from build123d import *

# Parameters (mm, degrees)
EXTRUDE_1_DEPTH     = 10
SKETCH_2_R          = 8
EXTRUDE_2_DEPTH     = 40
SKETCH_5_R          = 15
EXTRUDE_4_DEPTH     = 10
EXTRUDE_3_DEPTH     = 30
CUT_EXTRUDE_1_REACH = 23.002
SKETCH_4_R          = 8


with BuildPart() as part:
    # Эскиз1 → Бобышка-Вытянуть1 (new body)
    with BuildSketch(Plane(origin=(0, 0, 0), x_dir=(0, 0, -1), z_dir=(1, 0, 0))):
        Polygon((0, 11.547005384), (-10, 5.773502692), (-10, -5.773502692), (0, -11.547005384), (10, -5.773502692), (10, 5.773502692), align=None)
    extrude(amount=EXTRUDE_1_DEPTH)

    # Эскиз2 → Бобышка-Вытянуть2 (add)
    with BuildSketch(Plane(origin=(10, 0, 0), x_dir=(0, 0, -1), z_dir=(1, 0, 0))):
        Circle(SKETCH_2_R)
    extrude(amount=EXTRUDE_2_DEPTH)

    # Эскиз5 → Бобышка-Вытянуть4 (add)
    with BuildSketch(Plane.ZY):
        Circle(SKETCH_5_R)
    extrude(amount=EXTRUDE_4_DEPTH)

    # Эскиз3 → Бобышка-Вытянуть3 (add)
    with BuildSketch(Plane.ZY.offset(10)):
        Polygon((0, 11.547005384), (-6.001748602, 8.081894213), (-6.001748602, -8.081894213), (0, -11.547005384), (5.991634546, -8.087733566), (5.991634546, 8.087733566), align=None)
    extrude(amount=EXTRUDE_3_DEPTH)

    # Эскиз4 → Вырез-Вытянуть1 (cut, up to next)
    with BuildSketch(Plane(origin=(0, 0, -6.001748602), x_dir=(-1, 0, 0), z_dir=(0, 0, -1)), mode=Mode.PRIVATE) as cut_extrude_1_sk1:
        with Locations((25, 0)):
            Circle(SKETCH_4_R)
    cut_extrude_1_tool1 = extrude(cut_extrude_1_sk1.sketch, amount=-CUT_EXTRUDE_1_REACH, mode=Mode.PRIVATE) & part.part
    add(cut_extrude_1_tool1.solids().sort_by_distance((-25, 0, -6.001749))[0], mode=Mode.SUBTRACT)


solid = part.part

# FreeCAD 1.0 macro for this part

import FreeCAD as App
import Part
import Sketcher

V = App.Vector
Q = App.Units.Quantity


def add_polygon(sketch, points):
    """Adds a closed chain of lines whose ends are joined by coincident constraints."""
    first, n = sketch.GeometryCount, len(points)
    for a, b in zip(points, points[1:] + points[:1]):
        sketch.addGeometry(Part.LineSegment(App.Vector(*a, 0), App.Vector(*b, 0)), False)
    for i in range(n):
        sketch.addConstraint(Sketcher.Constraint("Coincident", first + i, 2, first + (i + 1) % n, 1))

doc = App.newDocument("Part")
params = doc.addObject("Spreadsheet::Sheet", "Params")
for row, (alias, value) in enumerate([
    ("pad1_length", "10 mm"),
    ("sketch2_diameter", "16 mm"),
    ("pad2_length", "40 mm"),
    ("sketch3_diameter", "30 mm"),
    ("pad3_length", "10 mm"),
    ("pad4_length", "30 mm"),
    ("sketch5_diameter", "16 mm"),
], start=1):
    params.set(f"A{row}", alias)
    params.set(f"B{row}", "=" + value)
    params.setAlias(f"B{row}", alias)

body = doc.addObject("PartDesign::Body", "Body")

# Sketch on YZ plane
sketch1 = doc.addObject("Sketcher::SketchObject", "Sketch")
body.addObject(sketch1)
sketch1.AttachmentSupport = (doc.YZ_Plane, [""])
sketch1.MapMode = "FlatFace"
add_polygon(sketch1, [(12, 0), (6, 10), (-6, 10), (-12, 0), (-6, -10), (6, -10)])  # lines 0-5
sketch1.addConstraint([
    Sketcher.Constraint("Horizontal", 1),
    Sketcher.Constraint("Horizontal", 4),
    Sketcher.Constraint("Symmetric", 0, 2, 3, 2, -1, 1),
    Sketcher.Constraint("Symmetric", 2, 2, 5, 2, -1, 1),
    Sketcher.Constraint("PointOnObject", 2, 2, -1),
    Sketcher.Constraint("Parallel", 2, 5),
    Sketcher.Constraint("Vertical", 1, 2, 3, 2),
    Sketcher.Constraint("Angle", 0, Q("120 deg")),
    Sketcher.Constraint("DistanceY", -1, 1, 0, 2, Q("10 mm")),
    Sketcher.Constraint("DistanceX", 1, 2, 1, 1, Q("11.547005 mm")),
])
pad1 = doc.addObject("PartDesign::Pad", "Pad")
body.addObject(pad1)
pad1.Profile = sketch1
pad1.setExpression("Length", "Params.pad1_length")

# Sketch on YZ plane
sketch2 = doc.addObject("Sketcher::SketchObject", "Sketch001")
body.addObject(sketch2)
sketch2.AttachmentSupport = (doc.YZ_Plane, [""])
sketch2.MapMode = "FlatFace"
sketch2.AttachmentOffset = App.Placement(V(0, 0, 10), App.Rotation())
sketch2.addGeometry(Part.Circle(V(0, 0, 0), V(0, 0, 1), 8), False)
sketch2.addConstraint([
    Sketcher.Constraint("Coincident", 0, 3, -1, 1),
    Sketcher.Constraint("Diameter", 0, Q("16 mm")),
])
sketch2.setExpression("Constraints[1]", "Params.sketch2_diameter")
pad2 = doc.addObject("PartDesign::Pad", "Pad001")
body.addObject(pad2)
pad2.Profile = sketch2
pad2.setExpression("Length", "Params.pad2_length")

# Sketch on YZ plane
sketch3 = doc.addObject("Sketcher::SketchObject", "Sketch002")
body.addObject(sketch3)
sketch3.AttachmentSupport = (doc.YZ_Plane, [""])
sketch3.MapMode = "FlatFace"
sketch3.addGeometry(Part.Circle(V(0, 0, 0), V(0, 0, 1), 15), False)
sketch3.addConstraint([
    Sketcher.Constraint("Coincident", 0, 3, -1, 1),
    Sketcher.Constraint("Diameter", 0, Q("30 mm")),
])
sketch3.setExpression("Constraints[1]", "Params.sketch3_diameter")
pad3 = doc.addObject("PartDesign::Pad", "Pad002")
body.addObject(pad3)
pad3.Profile = sketch3
pad3.setExpression("Length", "Params.pad3_length")
pad3.Reversed = True

# Sketch on YZ plane
sketch4 = doc.addObject("Sketcher::SketchObject", "Sketch003")
body.addObject(sketch4)
sketch4.AttachmentSupport = (doc.YZ_Plane, [""])
sketch4.MapMode = "FlatFace"
sketch4.AttachmentOffset = App.Placement(V(0, 0, -10), App.Rotation())
add_polygon(sketch4, [(12, 0), (8, -6), (-8, -6), (-12, 0), (-8, 6), (8, 6)])  # lines 0-5
sketch4.addConstraint([
    Sketcher.Constraint("Horizontal", 1),
    Sketcher.Constraint("Horizontal", 4),
    Sketcher.Constraint("Symmetric", 2, 2, 5, 2, -1, 1),
    Sketcher.Constraint("PointOnObject", 2, 2, -1),
    Sketcher.Constraint("Parallel", 0, 3),
    Sketcher.Constraint("Parallel", 2, 5),
    Sketcher.Constraint("Equal", 0, 2),
    Sketcher.Constraint("Angle", 0, Q("-120 deg")),
    Sketcher.Constraint("DistanceX", 1, 2, 1, 1, Q("16.163788 mm")),
    Sketcher.Constraint("DistanceX", 2, 2, 0, 2, Q("19.6289 mm")),
    Sketcher.Constraint("DistanceX", 4, 1, 4, 2, Q("16.175467 mm")),
])
pad4 = doc.addObject("PartDesign::Pad", "Pad003")
body.addObject(pad4)
pad4.Profile = sketch4
pad4.setExpression("Length", "Params.pad4_length")
pad4.Reversed = True

# Sketch on XY plane
sketch5 = doc.addObject("Sketcher::SketchObject", "Sketch004")
body.addObject(sketch5)
sketch5.AttachmentSupport = (doc.XY_Plane, [""])
sketch5.MapMode = "FlatFace"
sketch5.AttachmentOffset = App.Placement(V(0, 0, -6.001749), App.Rotation())
sketch5.addGeometry(Part.Circle(V(-25, 0, 0), V(0, 0, 1), 8), False)
sketch5.addConstraint([
    Sketcher.Constraint("PointOnObject", 0, 3, -1),
    Sketcher.Constraint("Diameter", 0, Q("16 mm")),
    Sketcher.Constraint("DistanceX", 0, 3, -1, 1, Q("25 mm")),
])
sketch5.setExpression("Constraints[1]", "Params.sketch5_diameter")
pocket1 = doc.addObject("PartDesign::Pocket", "Pocket")
body.addObject(pocket1)
pocket1.Profile = sketch5
pocket1.Type = "UpToFirst"
pocket1.Reversed = True

doc.recompute()
